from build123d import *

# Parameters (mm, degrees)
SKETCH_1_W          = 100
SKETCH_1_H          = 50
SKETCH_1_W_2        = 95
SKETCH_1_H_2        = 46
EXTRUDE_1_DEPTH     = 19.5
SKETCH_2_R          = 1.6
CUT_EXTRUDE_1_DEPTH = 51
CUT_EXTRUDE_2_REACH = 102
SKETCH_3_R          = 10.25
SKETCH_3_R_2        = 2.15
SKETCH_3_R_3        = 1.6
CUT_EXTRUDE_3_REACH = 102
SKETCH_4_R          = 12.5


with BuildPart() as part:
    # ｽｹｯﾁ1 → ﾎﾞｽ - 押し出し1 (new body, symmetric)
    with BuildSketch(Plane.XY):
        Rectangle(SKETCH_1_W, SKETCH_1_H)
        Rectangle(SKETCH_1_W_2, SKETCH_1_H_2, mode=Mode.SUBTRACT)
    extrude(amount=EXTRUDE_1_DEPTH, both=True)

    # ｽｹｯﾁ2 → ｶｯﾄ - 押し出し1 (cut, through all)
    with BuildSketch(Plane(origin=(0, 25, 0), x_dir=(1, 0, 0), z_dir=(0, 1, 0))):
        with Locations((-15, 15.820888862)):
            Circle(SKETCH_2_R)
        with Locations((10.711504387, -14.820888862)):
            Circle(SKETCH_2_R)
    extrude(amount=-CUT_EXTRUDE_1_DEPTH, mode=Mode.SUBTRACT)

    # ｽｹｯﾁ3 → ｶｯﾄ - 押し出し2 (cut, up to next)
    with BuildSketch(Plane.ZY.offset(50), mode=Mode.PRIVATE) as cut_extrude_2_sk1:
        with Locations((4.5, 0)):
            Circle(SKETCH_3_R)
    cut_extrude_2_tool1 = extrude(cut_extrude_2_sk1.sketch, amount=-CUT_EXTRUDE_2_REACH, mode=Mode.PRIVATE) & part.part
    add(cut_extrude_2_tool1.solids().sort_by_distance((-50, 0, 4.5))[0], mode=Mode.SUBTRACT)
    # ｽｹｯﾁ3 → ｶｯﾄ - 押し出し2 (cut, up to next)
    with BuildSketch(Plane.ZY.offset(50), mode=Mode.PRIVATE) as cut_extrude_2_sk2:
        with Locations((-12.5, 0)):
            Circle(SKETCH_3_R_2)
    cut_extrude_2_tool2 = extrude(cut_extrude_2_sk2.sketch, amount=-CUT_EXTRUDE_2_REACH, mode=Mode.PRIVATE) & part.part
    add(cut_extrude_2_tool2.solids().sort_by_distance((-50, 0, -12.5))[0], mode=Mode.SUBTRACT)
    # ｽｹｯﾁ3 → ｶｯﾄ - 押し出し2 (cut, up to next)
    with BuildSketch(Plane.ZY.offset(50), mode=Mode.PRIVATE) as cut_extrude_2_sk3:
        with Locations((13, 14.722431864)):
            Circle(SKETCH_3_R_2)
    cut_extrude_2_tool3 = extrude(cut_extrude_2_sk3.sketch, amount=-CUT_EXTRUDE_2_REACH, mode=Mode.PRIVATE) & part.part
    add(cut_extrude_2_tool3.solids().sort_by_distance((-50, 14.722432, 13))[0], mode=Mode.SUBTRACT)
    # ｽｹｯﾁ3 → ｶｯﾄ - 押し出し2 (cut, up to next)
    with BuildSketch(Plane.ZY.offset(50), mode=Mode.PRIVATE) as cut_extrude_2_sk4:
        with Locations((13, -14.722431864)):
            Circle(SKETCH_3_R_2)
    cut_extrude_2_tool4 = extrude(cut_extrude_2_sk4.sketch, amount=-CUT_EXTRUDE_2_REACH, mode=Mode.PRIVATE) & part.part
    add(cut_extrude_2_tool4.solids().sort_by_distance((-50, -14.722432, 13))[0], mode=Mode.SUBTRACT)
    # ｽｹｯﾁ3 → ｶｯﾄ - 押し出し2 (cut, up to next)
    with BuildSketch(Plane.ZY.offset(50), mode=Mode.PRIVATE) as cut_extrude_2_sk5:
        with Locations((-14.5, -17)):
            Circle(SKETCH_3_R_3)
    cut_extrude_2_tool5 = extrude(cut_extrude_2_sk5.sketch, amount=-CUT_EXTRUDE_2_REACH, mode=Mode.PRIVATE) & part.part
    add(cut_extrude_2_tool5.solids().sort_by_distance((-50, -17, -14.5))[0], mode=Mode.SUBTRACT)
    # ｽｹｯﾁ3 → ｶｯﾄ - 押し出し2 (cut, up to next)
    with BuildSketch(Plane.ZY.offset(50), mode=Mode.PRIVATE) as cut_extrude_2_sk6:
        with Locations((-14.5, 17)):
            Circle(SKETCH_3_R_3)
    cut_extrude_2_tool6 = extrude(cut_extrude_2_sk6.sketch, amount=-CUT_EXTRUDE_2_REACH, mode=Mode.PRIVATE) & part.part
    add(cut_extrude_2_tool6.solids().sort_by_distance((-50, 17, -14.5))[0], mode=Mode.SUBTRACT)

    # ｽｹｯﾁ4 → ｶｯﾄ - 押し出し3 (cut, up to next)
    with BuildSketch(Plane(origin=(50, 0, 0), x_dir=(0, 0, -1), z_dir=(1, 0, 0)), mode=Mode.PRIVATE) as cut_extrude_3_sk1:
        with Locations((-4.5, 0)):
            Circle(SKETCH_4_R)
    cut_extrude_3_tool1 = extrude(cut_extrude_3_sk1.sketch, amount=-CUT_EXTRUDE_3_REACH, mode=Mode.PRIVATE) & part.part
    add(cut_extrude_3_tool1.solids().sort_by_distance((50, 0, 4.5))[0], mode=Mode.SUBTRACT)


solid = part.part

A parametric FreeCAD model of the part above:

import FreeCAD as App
import Part
import Sketcher
from FreeCAD import Vector


def add_polygon(sketch, points):
    """Adds a closed chain of lines whose ends are joined by coincident constraints."""
    first, n = sketch.GeometryCount, len(points)
    for a, b in zip(points, points[1:] + points[:1]):
        sketch.addGeometry(Part.LineSegment(App.Vector(*a, 0), App.Vector(*b, 0)), False)
    for i in range(n):
        sketch.addConstraint(Sketcher.Constraint("Coincident", first + i, 2, first + (i + 1) % n, 1))

doc = App.newDocument("Part")
body = doc.addObject("PartDesign::Body", "Body")

# Sketch on XY plane
sketch1 = doc.addObject("Sketcher::SketchObject", "Sketch")
body.addObject(sketch1)
sketch1.AttachmentSupport = (doc.XY_Plane, [""])
sketch1.MapMode = "FlatFace"
add_polygon(sketch1, [(-50, 25), (-50, -25), (50, -25), (50, 25)])  # lines 0-3
add_polygon(sketch1, [(47.5, -23), (-47.5, -23), (-47.5, 23), (47.5, 23)])  # lines 4-7
sketch1.addConstraint([
    Sketcher.Constraint("Vertical", 0),
    Sketcher.Constraint("Horizontal", 1),
    Sketcher.Constraint("Vertical", 2),
    Sketcher.Constraint("Horizontal", 3),
    Sketcher.Constraint("Horizontal", 4),
    Sketcher.Constraint("Vertical", 5),
    Sketcher.Constraint("Horizontal", 6),
    Sketcher.Constraint("Vertical", 7),
    Sketcher.Constraint("Symmetric", 0, 2, 2, 2, -1, 1),
    Sketcher.Constraint("Symmetric", 4, 2, 6, 2, -1, 1),
    Sketcher.Constraint("DistanceX", 1, 1, 1, 2, 100.0),
    Sketcher.Constraint("DistanceX", 4, 2, 4, 1, 95.0),
    Sketcher.Constraint("DistanceY", 0, 2, 0, 1, 50.0),
    Sketcher.Constraint("DistanceY", 5, 1, 5, 2, 46.0),
])
pad1 = doc.addObject("PartDesign::Pad", "Pad")
body.addObject(pad1)
pad1.Profile = sketch1
pad1.Length = 39
pad1.Midplane = True

# Sketch on XZ plane
sketch2 = doc.addObject("Sketcher::SketchObject", "Sketch001")
body.addObject(sketch2)
sketch2.AttachmentSupport = (doc.XZ_Plane, [""])
sketch2.MapMode = "FlatFace"
sketch2.AttachmentOffset = App.Placement(Vector(0, 0, -25), App.Rotation())
sketch2.addGeometry([
    Part.Circle(Vector(-15, -15.820889, 0), Vector(0, 0, 1), 1.6),
    Part.Circle(Vector(10.711504, 14.820889, 0), Vector(0, 0, 1), 1.6),
], False)
sketch2.addConstraint([
    Sketcher.Constraint("Equal", 0, 1),
    Sketcher.Constraint("Diameter", 0, 3.2),
    Sketcher.Constraint("DistanceX", 0, 3, -1, 1, 15.0),
    Sketcher.Constraint("DistanceY", 0, 3, -1, 1, 15.820889),
    Sketcher.Constraint("DistanceY", -1, 1, 1, 3, 14.820889),
    Sketcher.Constraint("DistanceX", -1, 1, 1, 3, 10.711504),
])
pocket1 = doc.addObject("PartDesign::Pocket", "Pocket")
body.addObject(pocket1)
pocket1.Profile = sketch2
pocket1.Type = "ThroughAll"
pocket1.Reversed = True

# Sketch on YZ plane
sketch3 = doc.addObject("Sketcher::SketchObject", "Sketch002")
body.addObject(sketch3)
sketch3.AttachmentSupport = (doc.YZ_Plane, [""])
sketch3.MapMode = "FlatFace"
sketch3.AttachmentOffset = App.Placement(Vector(0, 0, -50), App.Rotation())
sketch3.addGeometry(Part.Circle(Vector(0, 4.5, 0), Vector(0, 0, 1), 10.25), False)
sketch3.addConstraint([
    Sketcher.Constraint("PointOnObject", 0, 3, -2),
    Sketcher.Constraint("Diameter", 0, 20.5),
    Sketcher.Constraint("DistanceY", -1, 1, 0, 3, 4.5),
])
pocket2 = doc.addObject("PartDesign::Pocket", "Pocket001")
body.addObject(pocket2)
pocket2.Profile = sketch3
pocket2.Type = "UpToFirst"
pocket2.Reversed = True

# Sketch on YZ plane
sketch4 = doc.addObject("Sketcher::SketchObject", "Sketch003")
body.addObject(sketch4)
sketch4.AttachmentSupport = (doc.YZ_Plane, [""])
sketch4.MapMode = "FlatFace"
sketch4.AttachmentOffset = App.Placement(Vector(0, 0, -50), App.Rotation())
sketch4.addGeometry(Part.Circle(Vector(0, -12.5, 0), Vector(0, 0, 1), 2.15), False)
sketch4.addConstraint([
    Sketcher.Constraint("PointOnObject", 0, 3, -2),
    Sketcher.Constraint("Diameter", 0, 4.3),
    Sketcher.Constraint("DistanceY", 0, 3, -1, 1, 12.5),
])
pocket3 = doc.addObject("PartDesign::Pocket", "Pocket002")
body.addObject(pocket3)
pocket3.Profile = sketch4
pocket3.Type = "UpToFirst"
pocket3.Reversed = True

# Sketch on YZ plane
sketch5 = doc.addObject("Sketcher::SketchObject", "Sketch004")
body.addObject(sketch5)
sketch5.AttachmentSupport = (doc.YZ_Plane, [""])
sketch5.MapMode = "FlatFace"
sketch5.AttachmentOffset = App.Placement(Vector(0, 0, -50), App.Rotation())
sketch5.addGeometry(Part.Circle(Vector(14.722432, 13, 0), Vector(0, 0, 1), 2.15), False)
sketch5.addConstraint([
    Sketcher.Constraint("Diameter", 0, 4.3),
    Sketcher.Constraint("DistanceY", -1, 1, 0, 3, 13.0),
    Sketcher.Constraint("DistanceX", -1, 1, 0, 3, 14.722432),
])
pocket4 = doc.addObject("PartDesign::Pocket", "Pocket003")
body.addObject(pocket4)
pocket4.Profile = sketch5
pocket4.Type = "UpToFirst"
pocket4.Reversed = True

# Sketch on YZ plane
sketch6 = doc.addObject("Sketcher::SketchObject", "Sketch005")
body.addObject(sketch6)
sketch6.AttachmentSupport = (doc.YZ_Plane, [""])
sketch6.MapMode = "FlatFace"
sketch6.AttachmentOffset = App.Placement(Vector(0, 0, -50), App.Rotation())
sketch6.addGeometry(Part.Circle(Vector(-14.722432, 13, 0), Vector(0, 0, 1), 2.15), False)
sketch6.addConstraint([
    Sketcher.Constraint("Diameter", 0, 4.3),
    Sketcher.Constraint("DistanceY", -1, 1, 0, 3, 13.0),
    Sketcher.Constraint("DistanceX", 0, 3, -1, 1, 14.722432),
])
pocket5 = doc.addObject("PartDesign::Pocket", "Pocket004")
body.addObject(pocket5)
pocket5.Profile = sketch6
pocket5.Type = "UpToFirst"
pocket5.Reversed = True

# Sketch on YZ plane
sketch7 = doc.addObject("Sketcher::SketchObject", "Sketch006")
body.addObject(sketch7)
sketch7.AttachmentSupport = (doc.YZ_Plane, [""])
sketch7.MapMode = "FlatFace"
sketch7.AttachmentOffset = App.Placement(Vector(0, 0, -50), App.Rotation())
sketch7.addGeometry(Part.Circle(Vector(-17, -14.5, 0), Vector(0, 0, 1), 1.6), False)
sketch7.addConstraint([
    Sketcher.Constraint("Diameter", 0, 3.2),
    Sketcher.Constraint("DistanceX", 0, 3, -1, 1, 17.0),
    Sketcher.Constraint("DistanceY", 0, 3, -1, 1, 14.5),
])
pocket6 = doc.addObject("PartDesign::Pocket", "Pocket005")
body.addObject(pocket6)
pocket6.Profile = sketch7
pocket6.Type = "UpToFirst"
pocket6.Reversed = True

# Sketch on YZ plane
sketch8 = doc.addObject("Sketcher::SketchObject", "Sketch007")
body.addObject(sketch8)
sketch8.AttachmentSupport = (doc.YZ_Plane, [""])
sketch8.MapMode = "FlatFace"
sketch8.AttachmentOffset = App.Placement(Vector(0, 0, -50), App.Rotation())
sketch8.addGeometry(Part.Circle(Vector(17, -14.5, 0), Vector(0, 0, 1), 1.6), False)
sketch8.addConstraint([
    Sketcher.Constraint("Diameter", 0, 3.2),
    Sketcher.Constraint("DistanceX", -1, 1, 0, 3, 17.0),
    Sketcher.Constraint("DistanceY", 0, 3, -1, 1, 14.5),
])
pocket7 = doc.addObject("PartDesign::Pocket", "Pocket006")
body.addObject(pocket7)
pocket7.Profile = sketch8
pocket7.Type = "UpToFirst"
pocket7.Reversed = True

# Sketch on YZ plane
sketch9 = doc.addObject("Sketcher::SketchObject", "Sketch008")
body.addObject(sketch9)
sketch9.AttachmentSupport = (doc.YZ_Plane, [""])
sketch9.MapMode = "FlatFace"
sketch9.AttachmentOffset = App.Placement(Vector(0, 0, 50), App.Rotation())
sketch9.addGeometry(Part.Circle(Vector(0, 4.5, 0), Vector(0, 0, 1), 12.5), False)
sketch9.addConstraint([
    Sketcher.Constraint("PointOnObject", 0, 3, -2),
    Sketcher.Constraint("Diameter", 0, 25.0),
    Sketcher.Constraint("DistanceY", -1, 1, 0, 3, 4.5),
])
pocket8 = doc.addObject("PartDesign::Pocket", "Pocket007")
body.addObject(pocket8)
pocket8.Profile = sketch9
pocket8.Type = "UpToFirst"

doc.recompute()
